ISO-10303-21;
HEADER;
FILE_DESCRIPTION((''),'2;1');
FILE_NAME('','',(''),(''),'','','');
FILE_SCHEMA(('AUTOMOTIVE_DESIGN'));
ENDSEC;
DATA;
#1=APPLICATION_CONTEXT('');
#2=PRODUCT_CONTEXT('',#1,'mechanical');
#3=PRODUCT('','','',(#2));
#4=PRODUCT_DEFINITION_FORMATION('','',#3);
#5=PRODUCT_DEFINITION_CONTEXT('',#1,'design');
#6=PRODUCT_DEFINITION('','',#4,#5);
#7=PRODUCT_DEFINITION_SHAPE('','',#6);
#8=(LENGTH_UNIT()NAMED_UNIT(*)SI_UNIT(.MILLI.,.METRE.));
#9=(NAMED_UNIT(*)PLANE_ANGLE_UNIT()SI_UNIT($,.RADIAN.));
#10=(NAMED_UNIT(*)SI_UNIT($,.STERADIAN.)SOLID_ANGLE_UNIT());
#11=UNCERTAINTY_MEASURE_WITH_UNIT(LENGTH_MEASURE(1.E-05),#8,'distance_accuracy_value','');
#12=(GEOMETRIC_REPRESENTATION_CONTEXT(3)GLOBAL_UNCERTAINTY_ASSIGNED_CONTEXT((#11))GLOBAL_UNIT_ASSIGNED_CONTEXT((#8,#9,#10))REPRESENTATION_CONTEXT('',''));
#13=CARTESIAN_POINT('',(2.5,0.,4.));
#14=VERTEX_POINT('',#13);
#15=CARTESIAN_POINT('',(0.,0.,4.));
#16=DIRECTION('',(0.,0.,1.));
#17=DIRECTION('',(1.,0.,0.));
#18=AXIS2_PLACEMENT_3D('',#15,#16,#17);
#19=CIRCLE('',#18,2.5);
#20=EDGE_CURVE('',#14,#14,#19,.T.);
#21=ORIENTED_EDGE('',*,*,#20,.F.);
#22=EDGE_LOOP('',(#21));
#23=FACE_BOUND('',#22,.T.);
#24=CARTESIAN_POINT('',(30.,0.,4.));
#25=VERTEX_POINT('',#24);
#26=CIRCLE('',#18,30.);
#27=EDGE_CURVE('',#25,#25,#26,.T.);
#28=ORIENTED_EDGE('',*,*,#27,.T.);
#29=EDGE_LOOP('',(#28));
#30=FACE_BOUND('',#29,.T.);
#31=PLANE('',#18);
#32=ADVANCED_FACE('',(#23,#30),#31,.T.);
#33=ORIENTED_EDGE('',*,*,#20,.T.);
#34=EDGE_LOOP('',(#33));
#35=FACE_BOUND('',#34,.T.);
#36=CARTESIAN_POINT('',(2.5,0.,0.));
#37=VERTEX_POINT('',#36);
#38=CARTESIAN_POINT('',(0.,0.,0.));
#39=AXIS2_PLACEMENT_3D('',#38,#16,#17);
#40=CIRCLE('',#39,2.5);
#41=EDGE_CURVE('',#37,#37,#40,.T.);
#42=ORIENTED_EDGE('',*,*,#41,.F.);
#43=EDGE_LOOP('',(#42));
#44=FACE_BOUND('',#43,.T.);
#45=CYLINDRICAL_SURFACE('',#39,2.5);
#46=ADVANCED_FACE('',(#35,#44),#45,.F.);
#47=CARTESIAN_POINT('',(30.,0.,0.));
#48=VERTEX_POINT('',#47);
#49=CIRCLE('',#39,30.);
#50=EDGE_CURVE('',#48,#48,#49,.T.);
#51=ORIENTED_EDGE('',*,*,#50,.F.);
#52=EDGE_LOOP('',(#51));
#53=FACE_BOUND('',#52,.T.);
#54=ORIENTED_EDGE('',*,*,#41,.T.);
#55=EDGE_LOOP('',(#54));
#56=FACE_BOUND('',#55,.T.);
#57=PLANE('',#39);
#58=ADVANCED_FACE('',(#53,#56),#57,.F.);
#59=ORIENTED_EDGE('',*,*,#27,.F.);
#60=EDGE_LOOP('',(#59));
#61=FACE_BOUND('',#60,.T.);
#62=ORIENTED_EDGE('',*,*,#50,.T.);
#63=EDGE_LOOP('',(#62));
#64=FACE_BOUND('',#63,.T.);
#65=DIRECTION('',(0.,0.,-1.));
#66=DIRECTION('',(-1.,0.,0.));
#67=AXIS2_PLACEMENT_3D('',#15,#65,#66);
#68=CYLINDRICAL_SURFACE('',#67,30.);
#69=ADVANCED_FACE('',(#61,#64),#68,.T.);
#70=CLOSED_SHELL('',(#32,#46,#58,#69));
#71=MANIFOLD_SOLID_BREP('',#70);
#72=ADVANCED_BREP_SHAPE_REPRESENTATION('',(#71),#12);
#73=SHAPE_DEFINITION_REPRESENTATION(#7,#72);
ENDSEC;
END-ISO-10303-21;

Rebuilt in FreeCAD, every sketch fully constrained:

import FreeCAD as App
import Part
import Sketcher

V = App.Vector
Q = App.Units.Quantity

doc = App.newDocument("Part")
body = doc.addObject("PartDesign::Body", "Body")

sketch1 = body.newObject("Sketcher::SketchObject", "Sketch")
sketch1.AttachmentSupport = (doc.getObject("XY_Plane"), [""])
sketch1.MapMode = "FlatFace"
sketch1.addGeometry(Part.Circle(V(0, 0, 0), V(0, 0, 1), 30), False)
sketch1.addConstraint(Sketcher.Constraint("Coincident", 0, 3, -1, 1))
sketch1.addConstraint(Sketcher.Constraint("Diameter", 0, Q("60 mm")))
pad1 = body.newObject("PartDesign::Pad", "Pad")
pad1.Profile = sketch1
pad1.Length = 4

sketch2 = body.newObject("Sketcher::SketchObject", "Sketch001")
sketch2.AttachmentSupport = (doc.getObject("XY_Plane"), [""])
sketch2.MapMode = "FlatFace"
sketch2.AttachmentOffset = App.Placement(V(0, 0, 4), App.Rotation())
sketch2.addGeometry(Part.Circle(V(0, 0, 0), V(0, 0, 1), 2.5), False)
sketch2.addConstraint(Sketcher.Constraint("Coincident", 0, 3, -1, 1))
sketch2.addConstraint(Sketcher.Constraint("Diameter", 0, Q("5 mm")))
pocket1 = body.newObject("PartDesign::Pocket", "Pocket")
pocket1.Profile = sketch2
pocket1.Length = 4

doc.recompute()
